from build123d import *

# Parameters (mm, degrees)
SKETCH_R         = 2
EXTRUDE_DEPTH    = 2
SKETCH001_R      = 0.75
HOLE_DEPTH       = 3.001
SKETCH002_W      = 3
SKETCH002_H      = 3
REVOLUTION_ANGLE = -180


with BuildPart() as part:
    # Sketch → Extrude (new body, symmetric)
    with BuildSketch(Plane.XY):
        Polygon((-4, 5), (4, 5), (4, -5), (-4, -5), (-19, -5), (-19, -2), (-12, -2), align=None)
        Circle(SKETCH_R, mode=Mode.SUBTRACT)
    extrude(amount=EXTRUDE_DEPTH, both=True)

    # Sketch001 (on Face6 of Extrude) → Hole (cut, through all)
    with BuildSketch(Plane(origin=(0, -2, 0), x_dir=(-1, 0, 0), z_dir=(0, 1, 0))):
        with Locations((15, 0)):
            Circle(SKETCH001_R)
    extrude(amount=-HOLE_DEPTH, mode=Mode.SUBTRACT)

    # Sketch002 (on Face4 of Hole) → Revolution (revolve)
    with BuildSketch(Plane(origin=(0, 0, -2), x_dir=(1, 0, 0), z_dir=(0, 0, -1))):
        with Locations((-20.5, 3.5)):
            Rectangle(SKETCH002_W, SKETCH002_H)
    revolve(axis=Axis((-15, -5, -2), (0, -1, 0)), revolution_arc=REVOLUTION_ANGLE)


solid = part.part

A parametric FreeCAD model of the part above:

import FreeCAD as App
import Part
import Sketcher
from FreeCAD import Vector
Q = App.Units.Quantity


def add_polygon(sketch, points):
    """Adds a closed chain of lines whose ends are joined by coincident constraints."""
    first, n = sketch.GeometryCount, len(points)
    for a, b in zip(points, points[1:] + points[:1]):
        sketch.addGeometry(Part.LineSegment(App.Vector(*a, 0), App.Vector(*b, 0)), False)
    for i in range(n):
        sketch.addConstraint(Sketcher.Constraint("Coincident", first + i, 2, first + (i + 1) % n, 1))

doc = App.newDocument("Part")
body = doc.addObject("PartDesign::Body", "Body")

# Sketch on XY plane
sketch1 = body.newObject("Sketcher::SketchObject", "Sketch")
sketch1.AttachmentSupport = (doc.getObject("XY_Plane"), [""])
sketch1.MapMode = "FlatFace"
add_polygon(sketch1, [(4, 5), (-4, 5), (-12, -2), (-19, -2), (-19, -5), (4, -5)])  # lines 0-5
sketch1.addGeometry(Part.Circle(Vector(0, 0, 0), Vector(0, 0, 1), 2), False)  # 6
sketch1.addConstraint(Sketcher.Constraint("Horizontal", 0))
sketch1.addConstraint(Sketcher.Constraint("Horizontal", 2))
sketch1.addConstraint(Sketcher.Constraint("Vertical", 3))
sketch1.addConstraint(Sketcher.Constraint("Horizontal", 4))
sketch1.addConstraint(Sketcher.Constraint("Vertical", 5))
sketch1.addConstraint(Sketcher.Constraint("Coincident", 6, 3, -1, 1))
sketch1.addConstraint(Sketcher.Constraint("Symmetric", 0, 2, 4, 2, -1, 1))
sketch1.addConstraint(Sketcher.Constraint("Diameter", 6, Q("4 mm")))
sketch1.addConstraint(Sketcher.Constraint("DistanceX", 0, 2, 0, 1, Q("8 mm")))
sketch1.addConstraint(Sketcher.Constraint("DistanceX", 2, 2, 2, 1, Q("7 mm")))
sketch1.addConstraint(Sketcher.Constraint("DistanceX", 4, 1, 4, 2, Q("23 mm")))
sketch1.addConstraint(Sketcher.Constraint("DistanceY", 3, 2, 3, 1, Q("3 mm")))
sketch1.addConstraint(Sketcher.Constraint("DistanceY", 5, 1, 5, 2, Q("10 mm")))
pad1 = body.newObject("PartDesign::Pad", "Pad")
pad1.Profile = sketch1
pad1.Length = 4
pad1.Midplane = True

# Sketch on XZ plane
sketch2 = body.newObject("Sketcher::SketchObject", "Sketch001")
sketch2.AttachmentSupport = (doc.getObject("XZ_Plane"), [""])
sketch2.MapMode = "FlatFace"
sketch2.AttachmentOffset = App.Placement(Vector(0, 0, 2), App.Rotation())
sketch2.addGeometry(Part.Circle(Vector(-15, 0, 0), Vector(0, 0, 1), 0.75), False)
sketch2.addConstraint(Sketcher.Constraint("PointOnObject", 0, 3, -1))
sketch2.addConstraint(Sketcher.Constraint("Diameter", 0, Q("1.5 mm")))
sketch2.addConstraint(Sketcher.Constraint("DistanceX", 0, 3, -1, 1, Q("15 mm")))
pocket1 = body.newObject("PartDesign::Pocket", "Pocket")
pocket1.Profile = sketch2
pocket1.Type = "ThroughAll"
pocket1.Reversed = True

# Sketch on XY plane
sketch3 = body.newObject("Sketcher::SketchObject", "Sketch002")
sketch3.AttachmentSupport = (doc.getObject("XY_Plane"), [""])
sketch3.MapMode = "FlatFace"
sketch3.AttachmentOffset = App.Placement(Vector(0, 0, -2), App.Rotation())
add_polygon(sketch3, [(-22, -5), (-22, -2), (-19, -2), (-19, -5)])  # lines 0-3
sketch3.addGeometry(Part.LineSegment(Vector(-15, -2, 0), Vector(-15, -5, 0)), True)  # axis
sketch3.addConstraint(Sketcher.Constraint("Vertical", 0))
sketch3.addConstraint(Sketcher.Constraint("Horizontal", 1))
sketch3.addConstraint(Sketcher.Constraint("Vertical", 2))
sketch3.addConstraint(Sketcher.Constraint("Horizontal", 3))
sketch3.addConstraint(Sketcher.Constraint("Vertical", 4))
sketch3.addConstraint(Sketcher.Constraint("Horizontal", 1, 2, 4, 1))
sketch3.addConstraint(Sketcher.Constraint("Horizontal", 3, 2, 4, 2))
sketch3.addConstraint(Sketcher.Constraint("Equal", 3, 0))
sketch3.addConstraint(Sketcher.Constraint("DistanceX", 1, 1, 1, 2, Q("3 mm")))
sketch3.addConstraint(Sketcher.Constraint("DistanceX", 0, 2, -1, 1, Q("22 mm")))
sketch3.addConstraint(Sketcher.Constraint("DistanceY", 0, 2, -1, 1, Q("2 mm")))
sketch3.addConstraint(Sketcher.Constraint("DistanceX", 4, 1, -1, 1, Q("15 mm")))
revolution = body.newObject("PartDesign::Revolution", "Revolution")
revolution.Profile = sketch3
revolution.ReferenceAxis = (sketch3, ["Axis0"])
revolution.Angle = 180
revolution.Reversed = True

doc.recompute()
